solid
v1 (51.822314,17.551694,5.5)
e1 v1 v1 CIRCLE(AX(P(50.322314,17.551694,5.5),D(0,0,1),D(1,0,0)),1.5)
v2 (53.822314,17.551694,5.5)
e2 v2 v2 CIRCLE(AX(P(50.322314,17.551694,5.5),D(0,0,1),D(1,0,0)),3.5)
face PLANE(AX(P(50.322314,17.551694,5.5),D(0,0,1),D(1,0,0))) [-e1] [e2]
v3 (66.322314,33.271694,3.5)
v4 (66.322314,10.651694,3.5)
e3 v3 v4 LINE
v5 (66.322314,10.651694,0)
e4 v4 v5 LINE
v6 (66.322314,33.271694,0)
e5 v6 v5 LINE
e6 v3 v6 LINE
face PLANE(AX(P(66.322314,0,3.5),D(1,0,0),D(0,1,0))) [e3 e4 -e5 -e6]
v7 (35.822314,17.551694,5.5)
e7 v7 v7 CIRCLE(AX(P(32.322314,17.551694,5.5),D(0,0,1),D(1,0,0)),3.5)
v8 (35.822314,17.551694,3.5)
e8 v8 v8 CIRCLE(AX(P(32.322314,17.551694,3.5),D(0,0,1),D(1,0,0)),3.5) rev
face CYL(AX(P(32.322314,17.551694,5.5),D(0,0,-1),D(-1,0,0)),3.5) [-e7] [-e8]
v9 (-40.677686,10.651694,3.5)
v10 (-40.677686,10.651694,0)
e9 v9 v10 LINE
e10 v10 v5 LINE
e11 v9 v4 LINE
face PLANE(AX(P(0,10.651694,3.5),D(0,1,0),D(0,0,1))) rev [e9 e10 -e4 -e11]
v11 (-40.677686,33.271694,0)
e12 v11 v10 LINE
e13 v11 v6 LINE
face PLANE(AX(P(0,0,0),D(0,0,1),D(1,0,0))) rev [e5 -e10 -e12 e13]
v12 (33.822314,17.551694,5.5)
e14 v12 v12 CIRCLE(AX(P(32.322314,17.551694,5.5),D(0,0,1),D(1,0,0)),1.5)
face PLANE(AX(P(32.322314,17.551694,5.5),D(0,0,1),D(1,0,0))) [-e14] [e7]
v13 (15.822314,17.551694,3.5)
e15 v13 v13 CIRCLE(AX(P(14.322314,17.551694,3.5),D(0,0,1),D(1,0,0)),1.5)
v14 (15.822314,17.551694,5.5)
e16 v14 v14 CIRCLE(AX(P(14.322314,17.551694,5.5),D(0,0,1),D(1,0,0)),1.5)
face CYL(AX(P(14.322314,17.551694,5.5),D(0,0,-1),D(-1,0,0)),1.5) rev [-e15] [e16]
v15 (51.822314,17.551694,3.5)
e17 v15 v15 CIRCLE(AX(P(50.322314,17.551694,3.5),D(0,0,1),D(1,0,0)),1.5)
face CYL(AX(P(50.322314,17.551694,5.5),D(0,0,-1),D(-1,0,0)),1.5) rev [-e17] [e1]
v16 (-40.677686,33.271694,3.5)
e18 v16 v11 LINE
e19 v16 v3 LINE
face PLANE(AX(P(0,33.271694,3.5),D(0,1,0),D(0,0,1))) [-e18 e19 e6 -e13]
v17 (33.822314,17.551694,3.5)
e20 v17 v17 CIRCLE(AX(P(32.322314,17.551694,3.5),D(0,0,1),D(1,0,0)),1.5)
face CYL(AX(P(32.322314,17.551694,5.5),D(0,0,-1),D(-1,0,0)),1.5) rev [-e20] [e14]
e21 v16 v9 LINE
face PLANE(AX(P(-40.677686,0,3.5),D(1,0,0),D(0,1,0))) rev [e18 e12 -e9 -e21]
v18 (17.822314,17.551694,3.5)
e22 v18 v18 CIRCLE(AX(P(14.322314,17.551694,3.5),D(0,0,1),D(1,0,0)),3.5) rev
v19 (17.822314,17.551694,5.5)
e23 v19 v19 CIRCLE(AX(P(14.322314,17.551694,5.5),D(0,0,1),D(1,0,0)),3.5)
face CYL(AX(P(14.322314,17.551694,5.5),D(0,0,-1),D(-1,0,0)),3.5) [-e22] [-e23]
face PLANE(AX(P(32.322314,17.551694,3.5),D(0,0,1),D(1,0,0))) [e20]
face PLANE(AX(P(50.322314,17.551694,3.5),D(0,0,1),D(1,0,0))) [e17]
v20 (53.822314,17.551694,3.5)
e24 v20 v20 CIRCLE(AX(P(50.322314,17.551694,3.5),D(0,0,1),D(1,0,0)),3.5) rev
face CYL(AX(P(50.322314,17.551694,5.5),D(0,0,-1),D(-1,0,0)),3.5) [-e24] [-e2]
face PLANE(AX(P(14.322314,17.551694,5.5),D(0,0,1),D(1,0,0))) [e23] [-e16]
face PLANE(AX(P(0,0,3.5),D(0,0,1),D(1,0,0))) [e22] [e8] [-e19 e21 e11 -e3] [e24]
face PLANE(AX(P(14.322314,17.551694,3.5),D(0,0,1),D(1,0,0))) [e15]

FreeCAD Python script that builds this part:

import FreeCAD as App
import Part
import Sketcher

V = App.Vector
Q = App.Units.Quantity


def add_polygon(sketch, points):
    """Adds a closed chain of lines whose ends are joined by coincident constraints."""
    first, n = sketch.GeometryCount, len(points)
    for a, b in zip(points, points[1:] + points[:1]):
        sketch.addGeometry(Part.LineSegment(App.Vector(*a, 0), App.Vector(*b, 0)), False)
    for i in range(n):
        sketch.addConstraint(Sketcher.Constraint("Coincident", first + i, 2, first + (i + 1) % n, 1))

doc = App.newDocument("Part")
body = doc.addObject("PartDesign::Body", "Body")

# Sketch on XY plane
sketch1 = body.newObject("Sketcher::SketchObject", "Sketch")
sketch1.AttachmentSupport = (doc.getObject("XY_Plane"), [""])
sketch1.MapMode = "FlatFace"
add_polygon(sketch1, [(-41, 33), (-41, 11), (66, 11), (66, 33)])  # lines 0-3
sketch1.addConstraint(Sketcher.Constraint("Vertical", 0))
sketch1.addConstraint(Sketcher.Constraint("Horizontal", 1))
sketch1.addConstraint(Sketcher.Constraint("Vertical", 2))
sketch1.addConstraint(Sketcher.Constraint("Horizontal", 3))
sketch1.addConstraint(Sketcher.Constraint("DistanceX", 1, 1, 1, 2, Q("107 mm")))
sketch1.addConstraint(Sketcher.Constraint("DistanceY", 0, 2, 0, 1, Q("22.62 mm")))
sketch1.addConstraint(Sketcher.Constraint("DistanceX", 0, 2, -1, 1, Q("40.677686 mm")))
sketch1.addConstraint(Sketcher.Constraint("DistanceY", -1, 1, 0, 2, Q("10.651694 mm")))
pad1 = body.newObject("PartDesign::Pad", "Pad")
pad1.Profile = sketch1
pad1.Length = 3.5

# Sketch on XY plane
sketch2 = body.newObject("Sketcher::SketchObject", "Sketch001")
sketch2.AttachmentSupport = (doc.getObject("XY_Plane"), [""])
sketch2.MapMode = "FlatFace"
sketch2.addGeometry(Part.Circle(V(14.3, 17.6, 0), V(0, 0, 1), 3.5), False)
sketch2.addGeometry(Part.Circle(V(32.3, 17.6, 0), V(0, 0, 1), 3.5), False)
sketch2.addGeometry(Part.Circle(V(50.3, 17.6, 0), V(0, 0, 1), 3.5), False)
sketch2.addConstraint(Sketcher.Constraint("Equal", 0, 1))
sketch2.addConstraint(Sketcher.Constraint("Equal", 1, 2))
sketch2.addConstraint(Sketcher.Constraint("Horizontal", 0, 3, 1, 3))
sketch2.addConstraint(Sketcher.Constraint("Horizontal", 1, 3, 2, 3))
sketch2.addConstraint(Sketcher.Constraint("Diameter", 0, Q("7 mm")))
sketch2.addConstraint(Sketcher.Constraint("DistanceX", 0, 3, 1, 3, Q("18 mm")))
sketch2.addConstraint(Sketcher.Constraint("DistanceX", 1, 3, 2, 3, Q("18 mm")))
sketch2.addConstraint(Sketcher.Constraint("DistanceX", -1, 1, 0, 3, Q("14.322314 mm")))
sketch2.addConstraint(Sketcher.Constraint("DistanceY", -1, 1, 0, 3, Q("17.551694 mm")))
pad2 = body.newObject("PartDesign::Pad", "Pad001")
pad2.Profile = sketch2
pad2.Length = 5.5

# Sketch on XY plane
sketch3 = body.newObject("Sketcher::SketchObject", "Sketch002")
sketch3.AttachmentSupport = (doc.getObject("XY_Plane"), [""])
sketch3.MapMode = "FlatFace"
sketch3.addGeometry(Part.Circle(V(14.3, 17.6, 0), V(0, 0, 1), 1.5), False)
sketch3.addGeometry(Part.Circle(V(32.3, 17.6, 0), V(0, 0, 1), 1.5), False)
sketch3.addGeometry(Part.Circle(V(50.3, 17.6, 0), V(0, 0, 1), 1.5), False)
sketch3.addConstraint(Sketcher.Constraint("Equal", 0, 1))
sketch3.addConstraint(Sketcher.Constraint("Equal", 1, 2))
sketch3.addConstraint(Sketcher.Constraint("Horizontal", 0, 3, 1, 3))
sketch3.addConstraint(Sketcher.Constraint("Horizontal", 1, 3, 2, 3))
sketch3.addConstraint(Sketcher.Constraint("Diameter", 0, Q("3 mm")))
sketch3.addConstraint(Sketcher.Constraint("DistanceX", 0, 3, 1, 3, Q("18 mm")))
sketch3.addConstraint(Sketcher.Constraint("DistanceX", 1, 3, 2, 3, Q("18 mm")))
sketch3.addConstraint(Sketcher.Constraint("DistanceX", -1, 1, 0, 3, Q("14.322314 mm")))
sketch3.addConstraint(Sketcher.Constraint("DistanceY", -1, 1, 0, 3, Q("17.551694 mm")))
pocket1 = body.newObject("PartDesign::Pocket", "Pocket")
pocket1.Profile = sketch3
pocket1.Length = 5.5
pocket1.Reversed = True

# Sketch on XY plane
sketch4 = body.newObject("Sketcher::SketchObject", "Sketch003")
sketch4.AttachmentSupport = (doc.getObject("XY_Plane"), [""])
sketch4.MapMode = "FlatFace"
sketch4.addGeometry(Part.Circle(V(14.3, 17.6, 0), V(0, 0, 1), 1.5), False)
sketch4.addGeometry(Part.Circle(V(32.3, 17.6, 0), V(0, 0, 1), 1.5), False)
sketch4.addGeometry(Part.Circle(V(50.3, 17.6, 0), V(0, 0, 1), 1.5), False)
sketch4.addConstraint(Sketcher.Constraint("Equal", 0, 1))
sketch4.addConstraint(Sketcher.Constraint("Equal", 1, 2))
sketch4.addConstraint(Sketcher.Constraint("Horizontal", 0, 3, 1, 3))
sketch4.addConstraint(Sketcher.Constraint("Horizontal", 1, 3, 2, 3))
sketch4.addConstraint(Sketcher.Constraint("Diameter", 0, Q("3 mm")))
sketch4.addConstraint(Sketcher.Constraint("DistanceX", 0, 3, 1, 3, Q("18 mm")))
sketch4.addConstraint(Sketcher.Constraint("DistanceX", 1, 3, 2, 3, Q("18 mm")))
sketch4.addConstraint(Sketcher.Constraint("DistanceX", -1, 1, 0, 3, Q("14.322314 mm")))
sketch4.addConstraint(Sketcher.Constraint("DistanceY", -1, 1, 0, 3, Q("17.551694 mm")))
pad3 = body.newObject("PartDesign::Pad", "Pad002")
pad3.Profile = sketch4
pad3.Length = 3.5

doc.recompute()
